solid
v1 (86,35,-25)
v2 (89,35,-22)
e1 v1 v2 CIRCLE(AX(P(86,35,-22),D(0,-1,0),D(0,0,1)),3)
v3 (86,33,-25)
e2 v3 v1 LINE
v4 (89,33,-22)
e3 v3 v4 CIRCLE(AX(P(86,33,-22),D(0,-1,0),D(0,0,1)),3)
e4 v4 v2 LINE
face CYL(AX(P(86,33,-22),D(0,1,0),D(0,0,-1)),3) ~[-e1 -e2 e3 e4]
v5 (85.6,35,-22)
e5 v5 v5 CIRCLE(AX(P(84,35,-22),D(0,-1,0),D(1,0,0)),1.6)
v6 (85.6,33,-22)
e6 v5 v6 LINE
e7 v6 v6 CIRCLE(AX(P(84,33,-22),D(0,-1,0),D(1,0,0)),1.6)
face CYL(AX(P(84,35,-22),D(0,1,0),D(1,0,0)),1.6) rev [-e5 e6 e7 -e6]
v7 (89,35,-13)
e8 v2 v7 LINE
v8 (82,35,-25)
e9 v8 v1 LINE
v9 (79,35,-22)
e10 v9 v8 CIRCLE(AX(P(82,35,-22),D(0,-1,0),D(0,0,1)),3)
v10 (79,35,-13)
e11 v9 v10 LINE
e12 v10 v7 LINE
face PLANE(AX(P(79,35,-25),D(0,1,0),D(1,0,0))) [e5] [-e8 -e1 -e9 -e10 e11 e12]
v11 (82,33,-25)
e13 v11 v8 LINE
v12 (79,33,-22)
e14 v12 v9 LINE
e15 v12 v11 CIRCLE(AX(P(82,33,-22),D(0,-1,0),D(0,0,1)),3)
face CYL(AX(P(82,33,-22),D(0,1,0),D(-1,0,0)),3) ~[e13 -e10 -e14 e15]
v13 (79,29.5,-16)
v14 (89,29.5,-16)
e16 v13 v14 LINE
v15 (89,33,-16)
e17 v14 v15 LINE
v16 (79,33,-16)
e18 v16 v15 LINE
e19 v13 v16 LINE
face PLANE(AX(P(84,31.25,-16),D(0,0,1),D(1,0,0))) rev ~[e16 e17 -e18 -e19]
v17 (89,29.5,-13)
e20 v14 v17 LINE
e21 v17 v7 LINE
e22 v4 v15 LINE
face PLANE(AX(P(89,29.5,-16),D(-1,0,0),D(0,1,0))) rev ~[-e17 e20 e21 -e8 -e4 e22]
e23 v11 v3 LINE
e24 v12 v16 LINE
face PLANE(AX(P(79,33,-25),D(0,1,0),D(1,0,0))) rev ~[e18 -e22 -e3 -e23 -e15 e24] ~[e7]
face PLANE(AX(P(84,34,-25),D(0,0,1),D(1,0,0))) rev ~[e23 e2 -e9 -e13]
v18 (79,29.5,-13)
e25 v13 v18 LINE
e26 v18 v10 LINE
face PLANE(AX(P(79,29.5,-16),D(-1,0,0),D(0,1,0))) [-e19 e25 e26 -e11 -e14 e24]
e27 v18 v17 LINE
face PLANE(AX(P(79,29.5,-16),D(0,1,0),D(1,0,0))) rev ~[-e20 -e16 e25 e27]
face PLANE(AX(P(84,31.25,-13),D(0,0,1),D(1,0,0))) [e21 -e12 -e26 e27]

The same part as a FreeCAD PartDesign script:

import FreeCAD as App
import Part
import Sketcher


def edges_at(feature, points):
    """Names of the edges that pass closest to the given points."""
    edges = feature.Shape.Edges
    near = lambda p: min(range(len(edges)), key=lambda i: edges[i].distToShape(Part.Vertex(*p))[0])
    return sorted({f"Edge{near(p) + 1}" for p in points})


def add_polygon(sketch, points):
    """Adds a closed chain of lines whose ends are joined by coincident constraints."""
    first, n = sketch.GeometryCount, len(points)
    for a, b in zip(points, points[1:] + points[:1]):
        sketch.addGeometry(Part.LineSegment(App.Vector(*a, 0), App.Vector(*b, 0)), False)
    for i in range(n):
        sketch.addConstraint(Sketcher.Constraint("Coincident", first + i, 2, first + (i + 1) % n, 1))

doc = App.newDocument("Part")
body = doc.addObject("PartDesign::Body", "Body")

# Sketch on XY plane
sketch1 = body.newObject("Sketcher::SketchObject", "Sketch")
sketch1.AttachmentSupport = (doc.getObject("XY_Plane"), [""])
sketch1.MapMode = "FlatFace"
sketch1.AttachmentOffset = App.Placement(App.Vector(0, 0, -16), App.Rotation())
add_polygon(sketch1, [(79, 33), (79, 29.5), (89, 29.5), (89, 33)])  # lines 0-3
sketch1.addConstraint([
    Sketcher.Constraint("Vertical", 0),
    Sketcher.Constraint("Horizontal", 1),
    Sketcher.Constraint("Vertical", 2),
    Sketcher.Constraint("Horizontal", 3),
    Sketcher.Constraint("DistanceX", 1, 1, 1, 2, 10.0),
    Sketcher.Constraint("DistanceY", 0, 2, 0, 1, 3.5),
    Sketcher.Constraint("DistanceX", -1, 1, 0, 2, 79.0),
    Sketcher.Constraint("DistanceY", -1, 1, 2, 2, 33.0),
])
pad1 = body.newObject("PartDesign::Pad", "Pad")
pad1.Profile = sketch1
pad1.Length = 3
body2 = doc.addObject("PartDesign::Body", "Body001")

# Sketch on XZ plane
sketch2 = body2.newObject("Sketcher::SketchObject", "Sketch001")
sketch2.AttachmentSupport = (doc.getObject("XZ_Plane001"), [""])
sketch2.MapMode = "FlatFace"
sketch2.AttachmentOffset = App.Placement(App.Vector(0, 0, -35), App.Rotation())
sketch2.addGeometry(Part.Circle(App.Vector(84, -22, 0), App.Vector(0, 0, 1), 1.6), False)
sketch2.addConstraint([
    Sketcher.Constraint("Diameter", 0, 3.2),
    Sketcher.Constraint("DistanceX", -1, 1, 0, 3, 84.0),
    Sketcher.Constraint("DistanceY", 0, 3, -1, 1, 22.0),
])
pad2 = body2.newObject("PartDesign::Pad", "Pad001")
pad2.Profile = sketch2
pad2.Length = 2
body3 = doc.addObject("PartDesign::Body", "Body002")

# Sketch on XY plane
sketch3 = body3.newObject("Sketcher::SketchObject", "Sketch002")
sketch3.AttachmentSupport = (doc.getObject("XY_Plane002"), [""])
sketch3.MapMode = "FlatFace"
sketch3.AttachmentOffset = App.Placement(App.Vector(0, 0, -25), App.Rotation())
add_polygon(sketch3, [(79, 35), (79, 33), (89, 33), (89, 35)])  # lines 0-3
sketch3.addConstraint([
    Sketcher.Constraint("Vertical", 0),
    Sketcher.Constraint("Horizontal", 1),
    Sketcher.Constraint("Vertical", 2),
    Sketcher.Constraint("Horizontal", 3),
    Sketcher.Constraint("DistanceX", 1, 1, 1, 2, 10.0),
    Sketcher.Constraint("DistanceY", 0, 2, 0, 1, 2.0),
    Sketcher.Constraint("DistanceX", -1, 1, 0, 2, 79.0),
    Sketcher.Constraint("DistanceY", -1, 1, 0, 2, 33.0),
])
pad3 = body3.newObject("PartDesign::Pad", "Pad002")
pad3.Profile = sketch3
pad3.Length = 12
doc.recompute()

boolean = body3.newObject("PartDesign::Boolean", "Boolean")
boolean.Type = "Cut"
boolean.addObjects([body2])
doc.recompute()

fillet = body3.newObject("PartDesign::Fillet", "Fillet")
fillet.Base = (boolean, edges_at(boolean, [(79, 34, -25), (89, 34, -25)]))
fillet.Radius = 3
doc.recompute()

boolean2 = body3.newObject("PartDesign::Boolean", "Boolean001")
boolean2.Type = "Fuse"
boolean2.addObjects([body])

doc.recompute()
